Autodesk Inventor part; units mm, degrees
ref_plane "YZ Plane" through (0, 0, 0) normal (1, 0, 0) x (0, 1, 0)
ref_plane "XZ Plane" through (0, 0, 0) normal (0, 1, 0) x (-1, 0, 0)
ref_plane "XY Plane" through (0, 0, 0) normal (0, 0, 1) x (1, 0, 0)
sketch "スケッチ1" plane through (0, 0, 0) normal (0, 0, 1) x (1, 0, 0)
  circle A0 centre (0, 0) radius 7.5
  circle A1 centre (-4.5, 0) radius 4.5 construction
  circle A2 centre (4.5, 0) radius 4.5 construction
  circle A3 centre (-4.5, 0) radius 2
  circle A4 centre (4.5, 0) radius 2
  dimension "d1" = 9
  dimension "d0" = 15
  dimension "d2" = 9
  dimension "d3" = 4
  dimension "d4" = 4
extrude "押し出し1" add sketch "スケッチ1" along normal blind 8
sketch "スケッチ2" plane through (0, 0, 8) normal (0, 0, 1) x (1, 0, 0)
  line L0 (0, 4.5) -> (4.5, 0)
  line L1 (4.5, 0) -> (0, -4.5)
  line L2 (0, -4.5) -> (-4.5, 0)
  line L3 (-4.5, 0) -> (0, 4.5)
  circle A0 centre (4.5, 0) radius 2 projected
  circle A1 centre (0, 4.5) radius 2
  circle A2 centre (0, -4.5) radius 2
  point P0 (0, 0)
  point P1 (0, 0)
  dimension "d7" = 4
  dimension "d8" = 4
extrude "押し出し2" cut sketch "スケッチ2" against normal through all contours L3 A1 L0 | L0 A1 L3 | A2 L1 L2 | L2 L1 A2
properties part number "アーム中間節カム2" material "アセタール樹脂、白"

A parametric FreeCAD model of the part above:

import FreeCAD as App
import Part
import Sketcher

doc = App.newDocument("Part")
body = doc.addObject("PartDesign::Body", "Body")

sketch1 = body.newObject("Sketcher::SketchObject", "Sketch")
sketch1.AttachmentSupport = (doc.getObject("XY_Plane"), [""])
sketch1.MapMode = "FlatFace"
sketch1.addGeometry([
    Part.Circle(App.Vector(0, 0, 0), App.Vector(0, 0, 1), 7.5),
    Part.Circle(App.Vector(-4.5, 0, 0), App.Vector(0, 0, 1), 2),
    Part.Circle(App.Vector(4.5, 0, 0), App.Vector(0, 0, 1), 2),
], False)
sketch1.addConstraint([
    Sketcher.Constraint("Coincident", 0, 3, -1, 1),
    Sketcher.Constraint("Equal", 1, 2),
    Sketcher.Constraint("Symmetric", 1, 3, 2, 3, -1, 1),
    Sketcher.Constraint("PointOnObject", 1, 3, -1),
    Sketcher.Constraint("Diameter", 0, 15.0),
    Sketcher.Constraint("Diameter", 1, 4.0),
    Sketcher.Constraint("DistanceX", 1, 3, 2, 3, 9.0),
])
pad1 = body.newObject("PartDesign::Pad", "Pad")
pad1.Profile = sketch1
pad1.Length = 8

sketch2 = body.newObject("Sketcher::SketchObject", "Sketch001")
sketch2.AttachmentSupport = (doc.getObject("XY_Plane"), [""])
sketch2.MapMode = "FlatFace"
sketch2.AttachmentOffset = App.Placement(App.Vector(0, 0, 8), App.Rotation())
sketch2.addGeometry([
    Part.Circle(App.Vector(0, 4.5, 0), App.Vector(0, 0, 1), 2),
    Part.Circle(App.Vector(0, -4.5, 0), App.Vector(0, 0, 1), 2),
], False)
sketch2.addConstraint([
    Sketcher.Constraint("Equal", 0, 1),
    Sketcher.Constraint("Symmetric", 0, 3, 1, 3, -1, 1),
    Sketcher.Constraint("PointOnObject", 0, 3, -2),
    Sketcher.Constraint("Diameter", 0, 4.0),
    Sketcher.Constraint("DistanceY", 1, 3, 0, 3, 9.0),
])
pocket1 = body.newObject("PartDesign::Pocket", "Pocket")
pocket1.Profile = sketch2
pocket1.Type = "ThroughAll"

doc.recompute()
